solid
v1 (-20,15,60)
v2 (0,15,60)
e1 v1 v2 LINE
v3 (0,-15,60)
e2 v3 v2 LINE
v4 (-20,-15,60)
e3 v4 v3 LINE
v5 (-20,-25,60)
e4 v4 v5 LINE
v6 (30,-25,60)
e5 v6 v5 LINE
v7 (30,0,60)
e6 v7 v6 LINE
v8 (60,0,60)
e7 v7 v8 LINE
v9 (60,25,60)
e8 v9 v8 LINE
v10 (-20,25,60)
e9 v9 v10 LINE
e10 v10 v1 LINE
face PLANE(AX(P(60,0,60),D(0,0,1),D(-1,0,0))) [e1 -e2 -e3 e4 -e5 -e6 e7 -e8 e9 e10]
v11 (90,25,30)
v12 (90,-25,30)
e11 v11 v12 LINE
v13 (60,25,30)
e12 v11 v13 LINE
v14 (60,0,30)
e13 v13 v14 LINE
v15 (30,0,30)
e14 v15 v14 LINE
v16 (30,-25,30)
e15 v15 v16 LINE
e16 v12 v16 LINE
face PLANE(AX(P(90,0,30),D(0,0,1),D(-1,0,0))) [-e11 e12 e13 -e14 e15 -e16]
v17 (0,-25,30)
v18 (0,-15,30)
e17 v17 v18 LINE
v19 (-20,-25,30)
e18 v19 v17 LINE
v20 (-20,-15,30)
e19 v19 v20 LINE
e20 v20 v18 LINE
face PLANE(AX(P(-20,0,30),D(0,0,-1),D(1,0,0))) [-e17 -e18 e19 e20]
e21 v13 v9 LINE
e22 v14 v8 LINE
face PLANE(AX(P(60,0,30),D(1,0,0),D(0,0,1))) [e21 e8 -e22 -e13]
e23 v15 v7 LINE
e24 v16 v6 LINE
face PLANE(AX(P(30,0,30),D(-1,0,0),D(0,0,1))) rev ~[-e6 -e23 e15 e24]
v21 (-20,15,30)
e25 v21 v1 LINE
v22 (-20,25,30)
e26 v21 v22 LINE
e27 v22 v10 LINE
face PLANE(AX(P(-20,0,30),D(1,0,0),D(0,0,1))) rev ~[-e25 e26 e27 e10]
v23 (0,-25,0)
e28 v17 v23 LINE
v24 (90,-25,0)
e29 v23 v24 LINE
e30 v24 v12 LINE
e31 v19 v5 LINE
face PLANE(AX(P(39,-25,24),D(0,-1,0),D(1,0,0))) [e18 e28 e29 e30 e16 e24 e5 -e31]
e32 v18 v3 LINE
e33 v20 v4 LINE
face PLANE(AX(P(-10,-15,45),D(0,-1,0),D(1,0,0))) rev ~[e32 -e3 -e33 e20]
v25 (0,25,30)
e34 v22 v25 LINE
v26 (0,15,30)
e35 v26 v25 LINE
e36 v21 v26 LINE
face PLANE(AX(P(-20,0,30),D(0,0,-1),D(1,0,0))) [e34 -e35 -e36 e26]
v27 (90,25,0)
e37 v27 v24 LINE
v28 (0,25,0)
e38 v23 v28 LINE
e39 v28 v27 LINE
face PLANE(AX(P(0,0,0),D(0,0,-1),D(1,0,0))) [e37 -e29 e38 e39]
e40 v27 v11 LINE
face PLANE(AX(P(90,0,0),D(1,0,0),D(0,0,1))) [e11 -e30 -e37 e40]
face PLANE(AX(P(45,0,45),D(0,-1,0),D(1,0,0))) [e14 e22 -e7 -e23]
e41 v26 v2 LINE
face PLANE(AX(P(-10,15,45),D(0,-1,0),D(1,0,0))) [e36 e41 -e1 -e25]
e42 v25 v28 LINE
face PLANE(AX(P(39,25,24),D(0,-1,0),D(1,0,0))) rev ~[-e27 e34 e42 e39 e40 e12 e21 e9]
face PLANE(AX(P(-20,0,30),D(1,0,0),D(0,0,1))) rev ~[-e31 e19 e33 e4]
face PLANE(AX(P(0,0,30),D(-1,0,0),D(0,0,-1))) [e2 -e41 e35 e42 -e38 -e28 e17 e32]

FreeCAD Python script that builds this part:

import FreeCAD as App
import Part
import Sketcher
from FreeCAD import Vector

doc = App.newDocument("Part")
body = doc.addObject("PartDesign::Body", "Body")

# Sketch on XZ plane
sketch1 = body.newObject("Sketcher::SketchObject", "Sketch")
sketch1.AttachmentSupport = (doc.getObject("XZ_Plane"), [""])
sketch1.MapMode = "FlatFace"
sketch1.addGeometry(Part.LineSegment(Vector(0, 0, 0), Vector(90, 0, 0)), False)
sketch1.addGeometry(Part.LineSegment(Vector(90, 0, 0), Vector(90, 30, 0)), False)
sketch1.addGeometry(Part.LineSegment(Vector(90, 30, 0), Vector(60, 30, 0)), False)
sketch1.addGeometry(Part.LineSegment(Vector(60, 30, 0), Vector(60, 60, 0)), False)
sketch1.addGeometry(Part.LineSegment(Vector(60, 60, 0), Vector(-20, 60, 0)), False)
sketch1.addGeometry(Part.LineSegment(Vector(-20, 60, 0), Vector(-20, 30, 0)), False)
sketch1.addGeometry(Part.LineSegment(Vector(-20, 30, 0), Vector(0, 30, 0)), False)
sketch1.addGeometry(Part.LineSegment(Vector(0, 30, 0), Vector(0, 0, 0)), False)
sketch1.addConstraint(Sketcher.Constraint("Coincident", 0, 2, 1, 1))
sketch1.addConstraint(Sketcher.Constraint("Coincident", 1, 2, 2, 1))
sketch1.addConstraint(Sketcher.Constraint("Coincident", 2, 2, 3, 1))
sketch1.addConstraint(Sketcher.Constraint("Coincident", 3, 2, 4, 1))
sketch1.addConstraint(Sketcher.Constraint("Coincident", 4, 2, 5, 1))
sketch1.addConstraint(Sketcher.Constraint("Coincident", 5, 2, 6, 1))
sketch1.addConstraint(Sketcher.Constraint("Coincident", 6, 2, 7, 1))
sketch1.addConstraint(Sketcher.Constraint("Coincident", 7, 2, 0, 1))
sketch1.addConstraint(Sketcher.Constraint("Horizontal", 0))
sketch1.addConstraint(Sketcher.Constraint("Vertical", 1))
sketch1.addConstraint(Sketcher.Constraint("Horizontal", 2))
sketch1.addConstraint(Sketcher.Constraint("Vertical", 3))
sketch1.addConstraint(Sketcher.Constraint("Horizontal", 4))
sketch1.addConstraint(Sketcher.Constraint("Vertical", 5))
sketch1.addConstraint(Sketcher.Constraint("Horizontal", 6))
sketch1.addConstraint(Sketcher.Constraint("Vertical", 7))
sketch1.addConstraint(Sketcher.Constraint("Coincident", 7, 2, -1, 1))
sketch1.addConstraint(Sketcher.Constraint("Horizontal", 2, 2, 5, 2))
sketch1.addConstraint(Sketcher.Constraint("Equal", 2, 1))
sketch1.addConstraint(Sketcher.Constraint("Equal", 1, 3))
sketch1.addConstraint(Sketcher.Constraint("DistanceX", 0, 1, 0, 2, 90.0))
sketch1.addConstraint(Sketcher.Constraint("DistanceX", 2, 2, 2, 1, 30.0))
sketch1.addConstraint(Sketcher.Constraint("DistanceX", 4, 2, 4, 1, 80.0))
pad1 = body.newObject("PartDesign::Pad", "Pad")
pad1.Profile = sketch1
pad1.Length = 50
pad1.Midplane = True

# Sketch on XZ plane
sketch2 = body.newObject("Sketcher::SketchObject", "Sketch001")
sketch2.AttachmentSupport = (doc.getObject("XZ_Plane"), [""])
sketch2.MapMode = "FlatFace"
sketch2.addGeometry(Part.LineSegment(Vector(30, 60, 0), Vector(30, 30, 0)), False)
sketch2.addGeometry(Part.LineSegment(Vector(30, 30, 0), Vector(60, 30, 0)), False)
sketch2.addGeometry(Part.LineSegment(Vector(60, 30, 0), Vector(60, 60, 0)), False)
sketch2.addGeometry(Part.LineSegment(Vector(60, 60, 0), Vector(30, 60, 0)), False)
sketch2.addConstraint(Sketcher.Constraint("Coincident", 0, 2, 1, 1))
sketch2.addConstraint(Sketcher.Constraint("Coincident", 1, 2, 2, 1))
sketch2.addConstraint(Sketcher.Constraint("Coincident", 2, 2, 3, 1))
sketch2.addConstraint(Sketcher.Constraint("Coincident", 3, 2, 0, 1))
sketch2.addConstraint(Sketcher.Constraint("Vertical", 0))
sketch2.addConstraint(Sketcher.Constraint("Horizontal", 1))
sketch2.addConstraint(Sketcher.Constraint("Vertical", 2))
sketch2.addConstraint(Sketcher.Constraint("Horizontal", 3))
sketch2.addConstraint(Sketcher.Constraint("Equal", 3, 0))
sketch2.addConstraint(Sketcher.Constraint("DistanceX", 1, 1, 1, 2, 30.0))
sketch2.addConstraint(Sketcher.Constraint("DistanceX", -1, 1, 0, 2, 30.0))
sketch2.addConstraint(Sketcher.Constraint("DistanceY", -1, 1, 0, 2, 30.0))
pocket1 = body.newObject("PartDesign::Pocket", "Pocket")
pocket1.Profile = sketch2
pocket1.Length = 25
pocket1.Reversed = True

# Sketch on XZ plane
sketch3 = body.newObject("Sketcher::SketchObject", "Sketch002")
sketch3.AttachmentSupport = (doc.getObject("XZ_Plane"), [""])
sketch3.MapMode = "FlatFace"
sketch3.addGeometry(Part.LineSegment(Vector(-20, 60, 0), Vector(-20, 30, 0)), False)
sketch3.addGeometry(Part.LineSegment(Vector(-20, 30, 0), Vector(0, 30, 0)), False)
sketch3.addGeometry(Part.LineSegment(Vector(0, 30, 0), Vector(0, 60, 0)), False)
sketch3.addGeometry(Part.LineSegment(Vector(0, 60, 0), Vector(-20, 60, 0)), False)
sketch3.addConstraint(Sketcher.Constraint("Coincident", 0, 2, 1, 1))
sketch3.addConstraint(Sketcher.Constraint("Coincident", 1, 2, 2, 1))
sketch3.addConstraint(Sketcher.Constraint("Coincident", 2, 2, 3, 1))
sketch3.addConstraint(Sketcher.Constraint("Coincident", 3, 2, 0, 1))
sketch3.addConstraint(Sketcher.Constraint("Vertical", 0))
sketch3.addConstraint(Sketcher.Constraint("Horizontal", 1))
sketch3.addConstraint(Sketcher.Constraint("Vertical", 2))
sketch3.addConstraint(Sketcher.Constraint("Horizontal", 3))
sketch3.addConstraint(Sketcher.Constraint("PointOnObject", 1, 2, -2))
sketch3.addConstraint(Sketcher.Constraint("DistanceX", 1, 1, 1, 2, 20.0))
sketch3.addConstraint(Sketcher.Constraint("DistanceY", 0, 2, 0, 1, 30.0))
sketch3.addConstraint(Sketcher.Constraint("DistanceY", -1, 1, 0, 2, 30.0))
pocket2 = body.newObject("PartDesign::Pocket", "Pocket001")
pocket2.Profile = sketch3
pocket2.Length = 30
pocket2.Midplane = True

doc.recompute()
